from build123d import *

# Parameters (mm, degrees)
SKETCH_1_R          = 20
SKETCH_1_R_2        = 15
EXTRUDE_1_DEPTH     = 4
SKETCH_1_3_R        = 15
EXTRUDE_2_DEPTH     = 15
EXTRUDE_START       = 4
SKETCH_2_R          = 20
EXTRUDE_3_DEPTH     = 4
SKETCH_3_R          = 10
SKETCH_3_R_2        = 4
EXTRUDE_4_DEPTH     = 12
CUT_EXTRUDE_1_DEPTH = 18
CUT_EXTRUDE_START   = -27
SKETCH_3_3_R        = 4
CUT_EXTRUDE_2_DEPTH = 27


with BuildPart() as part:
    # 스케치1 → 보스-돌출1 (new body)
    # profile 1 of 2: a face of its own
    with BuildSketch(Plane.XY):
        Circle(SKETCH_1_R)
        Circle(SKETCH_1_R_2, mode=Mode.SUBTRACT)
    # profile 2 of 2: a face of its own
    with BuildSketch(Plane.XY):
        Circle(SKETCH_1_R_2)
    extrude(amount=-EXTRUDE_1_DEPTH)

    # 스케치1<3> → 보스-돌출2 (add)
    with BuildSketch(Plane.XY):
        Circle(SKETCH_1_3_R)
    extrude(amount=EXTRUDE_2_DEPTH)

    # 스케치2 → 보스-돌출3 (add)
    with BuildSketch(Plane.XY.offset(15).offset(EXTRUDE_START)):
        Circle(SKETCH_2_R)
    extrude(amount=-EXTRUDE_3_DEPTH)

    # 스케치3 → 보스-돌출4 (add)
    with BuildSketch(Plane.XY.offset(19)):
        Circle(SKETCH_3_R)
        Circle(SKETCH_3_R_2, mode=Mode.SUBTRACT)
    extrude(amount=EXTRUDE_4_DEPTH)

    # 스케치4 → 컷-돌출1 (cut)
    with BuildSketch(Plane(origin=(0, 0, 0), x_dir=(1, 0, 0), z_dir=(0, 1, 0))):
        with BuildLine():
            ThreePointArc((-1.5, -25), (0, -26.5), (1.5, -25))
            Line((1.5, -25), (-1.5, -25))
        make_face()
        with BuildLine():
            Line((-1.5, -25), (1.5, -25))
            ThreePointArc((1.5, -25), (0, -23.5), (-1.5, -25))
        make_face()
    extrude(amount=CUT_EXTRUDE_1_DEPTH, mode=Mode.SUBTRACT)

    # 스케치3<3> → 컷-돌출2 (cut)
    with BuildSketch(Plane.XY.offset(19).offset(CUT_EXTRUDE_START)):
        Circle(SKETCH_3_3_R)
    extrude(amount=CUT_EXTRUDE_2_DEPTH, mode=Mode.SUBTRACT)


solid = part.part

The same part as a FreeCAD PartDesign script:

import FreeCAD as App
import Part
import Sketcher

V = App.Vector
Q = App.Units.Quantity

doc = App.newDocument("Part")
params = doc.addObject("Spreadsheet::Sheet", "Params")
for row, (alias, value) in enumerate([
    ("sketch1_diameter", "40 mm"),
    ("pad1_length", "4 mm"),
    ("sketch2_diameter", "30 mm"),
    ("pad2_length", "15 mm"),
    ("sketch3_diameter", "40 mm"),
    ("pad3_length", "4 mm"),
    ("sketch4_diameter", "20 mm"),
    ("sketch4_diameter2", "8 mm"),
    ("pad4_length", "12 mm"),
    ("sketch5_diameter", "3 mm"),
    ("pocket1_length", "18 mm"),
    ("sketch6_diameter", "8 mm"),
    ("pocket2_length", "27 mm"),
], start=1):
    params.set(f"A{row}", alias)
    params.set(f"B{row}", "=" + value)
    params.setAlias(f"B{row}", alias)

body = doc.addObject("PartDesign::Body", "Body")

# Sketch on XY plane
sketch1 = doc.addObject("Sketcher::SketchObject", "Sketch")
body.addObject(sketch1)
sketch1.AttachmentSupport = (doc.XY_Plane, [""])
sketch1.MapMode = "FlatFace"
sketch1.addGeometry(Part.Circle(V(0, 0, 0), V(0, 0, 1), 20), False)
sketch1.addConstraint(Sketcher.Constraint("Coincident", 0, 3, -1, 1))
sketch1.addConstraint(Sketcher.Constraint("Diameter", 0, Q("40 mm")))
sketch1.setExpression("Constraints[1]", "Params.sketch1_diameter")
pad1 = doc.addObject("PartDesign::Pad", "Pad")
body.addObject(pad1)
pad1.Profile = sketch1
pad1.setExpression("Length", "Params.pad1_length")
pad1.Reversed = True

# Sketch on XY plane
sketch2 = doc.addObject("Sketcher::SketchObject", "Sketch001")
body.addObject(sketch2)
sketch2.AttachmentSupport = (doc.XY_Plane, [""])
sketch2.MapMode = "FlatFace"
sketch2.addGeometry(Part.Circle(V(0, 0, 0), V(0, 0, 1), 15), False)
sketch2.addConstraint(Sketcher.Constraint("Coincident", 0, 3, -1, 1))
sketch2.addConstraint(Sketcher.Constraint("Diameter", 0, Q("30 mm")))
sketch2.setExpression("Constraints[1]", "Params.sketch2_diameter")
pad2 = doc.addObject("PartDesign::Pad", "Pad001")
body.addObject(pad2)
pad2.Profile = sketch2
pad2.setExpression("Length", "Params.pad2_length")

# Sketch on XY plane
sketch3 = doc.addObject("Sketcher::SketchObject", "Sketch002")
body.addObject(sketch3)
sketch3.AttachmentSupport = (doc.XY_Plane, [""])
sketch3.MapMode = "FlatFace"
sketch3.AttachmentOffset = App.Placement(V(0, 0, 19), App.Rotation())
sketch3.addGeometry(Part.Circle(V(0, 0, 0), V(0, 0, 1), 20), False)
sketch3.addConstraint(Sketcher.Constraint("Coincident", 0, 3, -1, 1))
sketch3.addConstraint(Sketcher.Constraint("Diameter", 0, Q("40 mm")))
sketch3.setExpression("Constraints[1]", "Params.sketch3_diameter")
pad3 = doc.addObject("PartDesign::Pad", "Pad002")
body.addObject(pad3)
pad3.Profile = sketch3
pad3.setExpression("Length", "Params.pad3_length")
pad3.Reversed = True

# Sketch on XY plane
sketch4 = doc.addObject("Sketcher::SketchObject", "Sketch003")
body.addObject(sketch4)
sketch4.AttachmentSupport = (doc.XY_Plane, [""])
sketch4.MapMode = "FlatFace"
sketch4.AttachmentOffset = App.Placement(V(0, 0, 19), App.Rotation())
sketch4.addGeometry(Part.Circle(V(0, 0, 0), V(0, 0, 1), 10), False)
sketch4.addGeometry(Part.Circle(V(0, 0, 0), V(0, 0, 1), 4), False)
sketch4.addConstraint(Sketcher.Constraint("Coincident", 0, 3, -1, 1))
sketch4.addConstraint(Sketcher.Constraint("Coincident", 1, 3, -1, 1))
sketch4.addConstraint(Sketcher.Constraint("Diameter", 0, Q("20 mm")))
sketch4.addConstraint(Sketcher.Constraint("Diameter", 1, Q("8 mm")))
sketch4.setExpression("Constraints[2]", "Params.sketch4_diameter")
sketch4.setExpression("Constraints[3]", "Params.sketch4_diameter2")
pad4 = doc.addObject("PartDesign::Pad", "Pad003")
body.addObject(pad4)
pad4.Profile = sketch4
pad4.setExpression("Length", "Params.pad4_length")

# Sketch on XZ plane
sketch5 = doc.addObject("Sketcher::SketchObject", "Sketch004")
body.addObject(sketch5)
sketch5.AttachmentSupport = (doc.XZ_Plane, [""])
sketch5.MapMode = "FlatFace"
sketch5.addGeometry(Part.Circle(V(0, 25, 0), V(0, 0, 1), 1.5), False)
sketch5.addConstraint(Sketcher.Constraint("PointOnObject", 0, 3, -2))
sketch5.addConstraint(Sketcher.Constraint("Diameter", 0, Q("3 mm")))
sketch5.addConstraint(Sketcher.Constraint("DistanceY", -1, 1, 0, 3, Q("25 mm")))
sketch5.setExpression("Constraints[1]", "Params.sketch5_diameter")
pocket1 = doc.addObject("PartDesign::Pocket", "Pocket")
body.addObject(pocket1)
pocket1.Profile = sketch5
pocket1.setExpression("Length", "Params.pocket1_length")

# Sketch on XY plane
sketch6 = doc.addObject("Sketcher::SketchObject", "Sketch005")
body.addObject(sketch6)
sketch6.AttachmentSupport = (doc.XY_Plane, [""])
sketch6.MapMode = "FlatFace"
sketch6.AttachmentOffset = App.Placement(V(0, 0, -8), App.Rotation())
sketch6.addGeometry(Part.Circle(V(0, 0, 0), V(0, 0, 1), 4), False)
sketch6.addConstraint(Sketcher.Constraint("Coincident", 0, 3, -1, 1))
sketch6.addConstraint(Sketcher.Constraint("Diameter", 0, Q("8 mm")))
sketch6.setExpression("Constraints[1]", "Params.sketch6_diameter")
pocket2 = doc.addObject("PartDesign::Pocket", "Pocket001")
body.addObject(pocket2)
pocket2.Profile = sketch6
pocket2.setExpression("Length", "Params.pocket2_length")
pocket2.Reversed = True

doc.recompute()
